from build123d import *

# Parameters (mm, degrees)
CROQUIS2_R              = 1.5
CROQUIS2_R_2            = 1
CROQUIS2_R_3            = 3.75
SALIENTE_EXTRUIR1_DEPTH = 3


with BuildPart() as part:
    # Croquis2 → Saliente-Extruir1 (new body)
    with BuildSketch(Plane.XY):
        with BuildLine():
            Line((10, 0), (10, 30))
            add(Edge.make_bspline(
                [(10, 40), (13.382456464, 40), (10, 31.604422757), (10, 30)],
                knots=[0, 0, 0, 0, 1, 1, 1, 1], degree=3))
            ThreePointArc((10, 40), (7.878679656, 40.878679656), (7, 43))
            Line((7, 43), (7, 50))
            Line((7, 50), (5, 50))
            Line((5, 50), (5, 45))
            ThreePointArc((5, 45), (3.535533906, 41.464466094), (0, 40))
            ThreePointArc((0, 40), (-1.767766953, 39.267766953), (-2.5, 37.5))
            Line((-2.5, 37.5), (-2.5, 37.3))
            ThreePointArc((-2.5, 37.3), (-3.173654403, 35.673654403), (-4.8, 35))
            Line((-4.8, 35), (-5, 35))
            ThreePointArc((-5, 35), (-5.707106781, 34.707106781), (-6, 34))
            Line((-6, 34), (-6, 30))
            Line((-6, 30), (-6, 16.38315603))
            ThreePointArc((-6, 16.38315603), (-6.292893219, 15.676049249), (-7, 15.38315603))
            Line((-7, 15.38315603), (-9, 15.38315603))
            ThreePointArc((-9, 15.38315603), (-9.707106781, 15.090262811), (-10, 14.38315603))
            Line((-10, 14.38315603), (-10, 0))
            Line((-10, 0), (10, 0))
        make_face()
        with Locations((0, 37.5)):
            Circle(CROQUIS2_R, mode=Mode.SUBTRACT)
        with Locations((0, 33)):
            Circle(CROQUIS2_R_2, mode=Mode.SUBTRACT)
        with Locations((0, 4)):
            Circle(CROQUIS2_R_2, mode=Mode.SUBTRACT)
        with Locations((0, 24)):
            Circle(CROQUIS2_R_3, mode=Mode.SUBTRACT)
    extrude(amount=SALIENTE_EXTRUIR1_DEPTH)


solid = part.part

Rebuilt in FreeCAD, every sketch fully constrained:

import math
import FreeCAD as App
import Part
import Sketcher

V = App.Vector
Q = App.Units.Quantity

doc = App.newDocument("Part")
body = doc.addObject("PartDesign::Body", "Body")

sketch1 = body.newObject("Sketcher::SketchObject", "Sketch")
sketch1.AttachmentSupport = (doc.getObject("XY_Plane"), [""])
sketch1.MapMode = "FlatFace"
sketch1.addGeometry(Part.LineSegment(V(10, 0, 0), V(10, 30, 0)), False)
sketch1.addGeometry(Part.BSplineCurve([V(10, 40, 0), V(13.382456, 40, 0), V(10, 31.604423, 0), V(10, 30, 0)], [4, 4], [0, 1], False, 3, [1, 1, 1, 1], False), False)
sketch1.addGeometry(Part.ArcOfCircle(Part.Circle(V(10, 43, 0), V(0, 0, 1), 3), math.radians(180), math.radians(270)), False)
sketch1.addGeometry(Part.LineSegment(V(7, 43, 0), V(7, 50, 0)), False)
sketch1.addGeometry(Part.LineSegment(V(7, 50, 0), V(5, 50, 0)), False)
sketch1.addGeometry(Part.LineSegment(V(5, 50, 0), V(5, 45, 0)), False)
sketch1.addGeometry(Part.ArcOfCircle(Part.Circle(V(0, 45, 0), V(0, 0, 1), 5), math.radians(-90), math.radians(0)), False)
sketch1.addGeometry(Part.ArcOfCircle(Part.Circle(V(0, 37.5, 0), V(0, 0, 1), 2.5), math.radians(90), math.radians(180)), False)
sketch1.addGeometry(Part.LineSegment(V(-2.5, 37.5, 0), V(-2.5, 37.3, 0)), False)
sketch1.addGeometry(Part.ArcOfCircle(Part.Circle(V(-4.8, 37.3, 0), V(0, 0, 1), 2.3), math.radians(-90), math.radians(0)), False)
sketch1.addGeometry(Part.LineSegment(V(-4.8, 35, 0), V(-5, 35, 0)), False)
sketch1.addGeometry(Part.ArcOfCircle(Part.Circle(V(-5, 34, 0), V(0, 0, 1), 1), math.radians(90), math.radians(180)), False)
sketch1.addGeometry(Part.LineSegment(V(-6, 34, 0), V(-6, 16.383156, 0)), False)
sketch1.addGeometry(Part.ArcOfCircle(Part.Circle(V(-7, 16.383156, 0), V(0, 0, 1), 1), math.radians(-90), math.radians(0)), False)
sketch1.addGeometry(Part.LineSegment(V(-7, 15.383156, 0), V(-9, 15.383156, 0)), False)
sketch1.addGeometry(Part.ArcOfCircle(Part.Circle(V(-9, 14.383156, 0), V(0, 0, 1), 1), math.radians(90), math.radians(180)), False)
sketch1.addGeometry(Part.LineSegment(V(-10, 14.383156, 0), V(-10, 0, 0)), False)
sketch1.addGeometry(Part.LineSegment(V(-10, 0, 0), V(10, 0, 0)), False)
sketch1.addGeometry(Part.Circle(V(0, 4, 0), V(0, 0, 1), 1), False)
sketch1.addGeometry(Part.Circle(V(0, 24, 0), V(0, 0, 1), 3.75), False)
sketch1.addGeometry(Part.Circle(V(0, 33, 0), V(0, 0, 1), 1), False)
sketch1.addGeometry(Part.Circle(V(0, 37.5, 0), V(0, 0, 1), 1.5), False)
sketch1.addConstraint(Sketcher.Constraint("Block", 1))
sketch1.addConstraint(Sketcher.Constraint("Coincident", 0, 2, 1, 2))
sketch1.addConstraint(Sketcher.Constraint("Coincident", 1, 1, 2, 2))
sketch1.addConstraint(Sketcher.Constraint("Tangent", 2, 1, 3, 1))
sketch1.addConstraint(Sketcher.Constraint("Coincident", 3, 2, 4, 1))
sketch1.addConstraint(Sketcher.Constraint("Coincident", 4, 2, 5, 1))
sketch1.addConstraint(Sketcher.Constraint("Tangent", 5, 2, 6, 2))
sketch1.addConstraint(Sketcher.Constraint("Tangent", 6, 1, 7, 1))
sketch1.addConstraint(Sketcher.Constraint("Tangent", 7, 2, 8, 1))
sketch1.addConstraint(Sketcher.Constraint("Tangent", 8, 2, 9, 2))
sketch1.addConstraint(Sketcher.Constraint("Tangent", 9, 1, 10, 1))
sketch1.addConstraint(Sketcher.Constraint("Tangent", 10, 2, 11, 1))
sketch1.addConstraint(Sketcher.Constraint("Tangent", 11, 2, 12, 1))
sketch1.addConstraint(Sketcher.Constraint("Tangent", 12, 2, 13, 2))
sketch1.addConstraint(Sketcher.Constraint("Tangent", 13, 1, 14, 1))
sketch1.addConstraint(Sketcher.Constraint("Tangent", 14, 2, 15, 1))
sketch1.addConstraint(Sketcher.Constraint("Tangent", 15, 2, 16, 1))
sketch1.addConstraint(Sketcher.Constraint("Coincident", 16, 2, 17, 1))
sketch1.addConstraint(Sketcher.Constraint("Coincident", 17, 2, 0, 1))
sketch1.addConstraint(Sketcher.Constraint("Vertical", 0))
sketch1.addConstraint(Sketcher.Constraint("Vertical", 3))
sketch1.addConstraint(Sketcher.Constraint("Horizontal", 4))
sketch1.addConstraint(Sketcher.Constraint("Vertical", 5))
sketch1.addConstraint(Sketcher.Constraint("Vertical", 8))
sketch1.addConstraint(Sketcher.Constraint("Horizontal", 10))
sketch1.addConstraint(Sketcher.Constraint("Vertical", 12))
sketch1.addConstraint(Sketcher.Constraint("Horizontal", 14))
sketch1.addConstraint(Sketcher.Constraint("Vertical", 16))
sketch1.addConstraint(Sketcher.Constraint("Horizontal", 17))
sketch1.addConstraint(Sketcher.Constraint("Coincident", 21, 3, 7, 3))
sketch1.addConstraint(Sketcher.Constraint("Equal", 11, 13))
sketch1.addConstraint(Sketcher.Constraint("Equal", 13, 15))
sketch1.addConstraint(Sketcher.Constraint("Equal", 15, 18))
sketch1.addConstraint(Sketcher.Constraint("Equal", 18, 20))
sketch1.addConstraint(Sketcher.Constraint("Symmetric", 16, 2, 17, 2, -1, 1))
sketch1.addConstraint(Sketcher.Constraint("PointOnObject", 6, 3, -2))
sketch1.addConstraint(Sketcher.Constraint("PointOnObject", 7, 3, -2))
sketch1.addConstraint(Sketcher.Constraint("PointOnObject", 18, 3, -2))
sketch1.addConstraint(Sketcher.Constraint("PointOnObject", 19, 3, -2))
sketch1.addConstraint(Sketcher.Constraint("PointOnObject", 20, 3, -2))
sketch1.addConstraint(Sketcher.Constraint("Vertical", 2, 3, 0, 2))
sketch1.addConstraint(Sketcher.Constraint("Equal", 4, 14))
sketch1.addConstraint(Sketcher.Constraint("Equal", 10, 8))
sketch1.addConstraint(Sketcher.Constraint("Diameter", 18, Q("2 mm")))
sketch1.addConstraint(Sketcher.Constraint("Diameter", 21, Q("3 mm")))
sketch1.addConstraint(Sketcher.Constraint("Radius", 2, Q("3 mm")))
sketch1.addConstraint(Sketcher.Constraint("Radius", 6, Q("5 mm")))
sketch1.addConstraint(Sketcher.Constraint("Diameter", 19, Q("7.5 mm")))
sketch1.addConstraint(Sketcher.Constraint("Radius", 7, Q("2.5 mm")))
sketch1.addConstraint(Sketcher.Constraint("Radius", 9, Q("2.3 mm")))
sketch1.addConstraint(Sketcher.Constraint("DistanceY", 3, 1, 3, 2, Q("7 mm")))
sketch1.addConstraint(Sketcher.Constraint("DistanceY", 5, 2, 5, 1, Q("5 mm")))
sketch1.addConstraint(Sketcher.Constraint("DistanceY", -1, 1, 18, 3, Q("4 mm")))
sketch1.addConstraint(Sketcher.Constraint("DistanceY", -1, 1, 19, 3, Q("24 mm")))
sketch1.addConstraint(Sketcher.Constraint("DistanceY", -1, 1, 20, 3, Q("33 mm")))
sketch1.addConstraint(Sketcher.Constraint("DistanceY", 12, 2, 12, 1, Q("17.616844 mm")))
pad1 = body.newObject("PartDesign::Pad", "Pad")
pad1.Profile = sketch1
pad1.Length = 3

doc.recompute()
